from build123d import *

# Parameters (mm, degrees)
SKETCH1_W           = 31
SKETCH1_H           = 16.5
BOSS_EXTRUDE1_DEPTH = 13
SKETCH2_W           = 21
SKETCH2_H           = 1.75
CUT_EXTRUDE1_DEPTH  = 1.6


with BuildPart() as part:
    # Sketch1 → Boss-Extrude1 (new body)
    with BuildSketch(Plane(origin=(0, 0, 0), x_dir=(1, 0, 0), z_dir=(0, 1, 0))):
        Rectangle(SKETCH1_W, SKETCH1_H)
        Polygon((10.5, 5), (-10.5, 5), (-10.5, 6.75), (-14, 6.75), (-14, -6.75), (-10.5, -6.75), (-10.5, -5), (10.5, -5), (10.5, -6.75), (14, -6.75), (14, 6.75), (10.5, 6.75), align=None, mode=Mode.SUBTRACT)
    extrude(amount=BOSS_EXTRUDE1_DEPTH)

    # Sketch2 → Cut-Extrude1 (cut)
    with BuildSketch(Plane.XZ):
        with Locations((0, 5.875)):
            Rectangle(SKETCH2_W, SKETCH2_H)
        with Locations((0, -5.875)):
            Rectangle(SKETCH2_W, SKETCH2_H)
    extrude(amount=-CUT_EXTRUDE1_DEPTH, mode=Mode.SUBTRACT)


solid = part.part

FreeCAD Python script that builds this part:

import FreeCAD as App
import Part
import Sketcher


def add_polygon(sketch, points):
    """Adds a closed chain of lines whose ends are joined by coincident constraints."""
    first, n = sketch.GeometryCount, len(points)
    for a, b in zip(points, points[1:] + points[:1]):
        sketch.addGeometry(Part.LineSegment(App.Vector(*a, 0), App.Vector(*b, 0)), False)
    for i in range(n):
        sketch.addConstraint(Sketcher.Constraint("Coincident", first + i, 2, first + (i + 1) % n, 1))

doc = App.newDocument("Part")
body = doc.addObject("PartDesign::Body", "Body")

sketch1 = body.newObject("Sketcher::SketchObject", "Sketch")
sketch1.AttachmentSupport = (doc.getObject("XZ_Plane"), [""])
sketch1.MapMode = "FlatFace"
add_polygon(sketch1, [(-15.5, -8.2), (-15.5, 8.2), (15.5, 8.2), (15.5, -8.2)])
add_polygon(sketch1, [(-10.5, -5), (10.5, -5), (10.5, -6.8), (14, -6.8), (14, 6.8), (10.5, 6.8), (10.5, 5), (-10.5, 5), (-10.5, 6.8), (-14, 6.8), (-14, -6.8), (-10.5, -6.8)])
sketch1.addConstraint([
    Sketcher.Constraint("Vertical", 0),
    Sketcher.Constraint("Horizontal", 1),
    Sketcher.Constraint("Vertical", 2),
    Sketcher.Constraint("Horizontal", 3),
    Sketcher.Constraint("Horizontal", 4),
    Sketcher.Constraint("Vertical", 5),
    Sketcher.Constraint("Horizontal", 6),
    Sketcher.Constraint("Vertical", 7),
    Sketcher.Constraint("Horizontal", 8),
    Sketcher.Constraint("Vertical", 9),
    Sketcher.Constraint("Horizontal", 10),
    Sketcher.Constraint("Vertical", 11),
    Sketcher.Constraint("Horizontal", 12),
    Sketcher.Constraint("Vertical", 13),
    Sketcher.Constraint("Horizontal", 14),
    Sketcher.Constraint("Vertical", 15),
    Sketcher.Constraint("Symmetric", 0, 2, 2, 2, -1, 1),
    Sketcher.Constraint("Symmetric", 4, 2, 10, 2, -1, 1),
    Sketcher.Constraint("Symmetric", 6, 2, 12, 2, -1, 1),
    Sketcher.Constraint("Symmetric", 8, 2, 14, 2, -1, 1),
    Sketcher.Constraint("Symmetric", 8, 2, 11, 2, -2),
    Sketcher.Constraint("DistanceX", 1, 1, 1, 2, 31.0),
    Sketcher.Constraint("DistanceX", 4, 1, 4, 2, 21.0),
    Sketcher.Constraint("DistanceX", 6, 1, 6, 2, 3.5),
    Sketcher.Constraint("DistanceY", 0, 1, 0, 2, 16.5),
    Sketcher.Constraint("DistanceY", 7, 1, 7, 2, 13.5),
    Sketcher.Constraint("DistanceY", 4, 2, -1, 1, 5.0),
])
pad1 = body.newObject("PartDesign::Pad", "Pad")
pad1.Profile = sketch1
pad1.Length = 13
pad1.Reversed = True

sketch2 = body.newObject("Sketcher::SketchObject", "Sketch001")
sketch2.AttachmentSupport = (doc.getObject("XZ_Plane"), [""])
sketch2.MapMode = "FlatFace"
add_polygon(sketch2, [(-10.5, 6.8), (-10.5, 5), (10.5, 5), (10.5, 6.8)])
add_polygon(sketch2, [(-10.5, -5), (-10.5, -6.8), (10.5, -6.8), (10.5, -5)])
sketch2.addConstraint([
    Sketcher.Constraint("Vertical", 0),
    Sketcher.Constraint("Horizontal", 1),
    Sketcher.Constraint("Vertical", 2),
    Sketcher.Constraint("Horizontal", 3),
    Sketcher.Constraint("Vertical", 4),
    Sketcher.Constraint("Horizontal", 5),
    Sketcher.Constraint("Vertical", 6),
    Sketcher.Constraint("Horizontal", 7),
    Sketcher.Constraint("Symmetric", 2, 2, 4, 2, -1, 1),
    Sketcher.Constraint("Symmetric", 0, 2, 6, 2, -1, 1),
    Sketcher.Constraint("Vertical", 3, 2, 4, 2),
    Sketcher.Constraint("DistanceX", 1, 1, 1, 2, 21.0),
    Sketcher.Constraint("DistanceY", -1, 1, 0, 2, 5.0),
    Sketcher.Constraint("DistanceY", 0, 2, 0, 1, 1.75),
])
pocket1 = body.newObject("PartDesign::Pocket", "Pocket")
pocket1.Profile = sketch2
pocket1.Length = 1.6

doc.recompute()
